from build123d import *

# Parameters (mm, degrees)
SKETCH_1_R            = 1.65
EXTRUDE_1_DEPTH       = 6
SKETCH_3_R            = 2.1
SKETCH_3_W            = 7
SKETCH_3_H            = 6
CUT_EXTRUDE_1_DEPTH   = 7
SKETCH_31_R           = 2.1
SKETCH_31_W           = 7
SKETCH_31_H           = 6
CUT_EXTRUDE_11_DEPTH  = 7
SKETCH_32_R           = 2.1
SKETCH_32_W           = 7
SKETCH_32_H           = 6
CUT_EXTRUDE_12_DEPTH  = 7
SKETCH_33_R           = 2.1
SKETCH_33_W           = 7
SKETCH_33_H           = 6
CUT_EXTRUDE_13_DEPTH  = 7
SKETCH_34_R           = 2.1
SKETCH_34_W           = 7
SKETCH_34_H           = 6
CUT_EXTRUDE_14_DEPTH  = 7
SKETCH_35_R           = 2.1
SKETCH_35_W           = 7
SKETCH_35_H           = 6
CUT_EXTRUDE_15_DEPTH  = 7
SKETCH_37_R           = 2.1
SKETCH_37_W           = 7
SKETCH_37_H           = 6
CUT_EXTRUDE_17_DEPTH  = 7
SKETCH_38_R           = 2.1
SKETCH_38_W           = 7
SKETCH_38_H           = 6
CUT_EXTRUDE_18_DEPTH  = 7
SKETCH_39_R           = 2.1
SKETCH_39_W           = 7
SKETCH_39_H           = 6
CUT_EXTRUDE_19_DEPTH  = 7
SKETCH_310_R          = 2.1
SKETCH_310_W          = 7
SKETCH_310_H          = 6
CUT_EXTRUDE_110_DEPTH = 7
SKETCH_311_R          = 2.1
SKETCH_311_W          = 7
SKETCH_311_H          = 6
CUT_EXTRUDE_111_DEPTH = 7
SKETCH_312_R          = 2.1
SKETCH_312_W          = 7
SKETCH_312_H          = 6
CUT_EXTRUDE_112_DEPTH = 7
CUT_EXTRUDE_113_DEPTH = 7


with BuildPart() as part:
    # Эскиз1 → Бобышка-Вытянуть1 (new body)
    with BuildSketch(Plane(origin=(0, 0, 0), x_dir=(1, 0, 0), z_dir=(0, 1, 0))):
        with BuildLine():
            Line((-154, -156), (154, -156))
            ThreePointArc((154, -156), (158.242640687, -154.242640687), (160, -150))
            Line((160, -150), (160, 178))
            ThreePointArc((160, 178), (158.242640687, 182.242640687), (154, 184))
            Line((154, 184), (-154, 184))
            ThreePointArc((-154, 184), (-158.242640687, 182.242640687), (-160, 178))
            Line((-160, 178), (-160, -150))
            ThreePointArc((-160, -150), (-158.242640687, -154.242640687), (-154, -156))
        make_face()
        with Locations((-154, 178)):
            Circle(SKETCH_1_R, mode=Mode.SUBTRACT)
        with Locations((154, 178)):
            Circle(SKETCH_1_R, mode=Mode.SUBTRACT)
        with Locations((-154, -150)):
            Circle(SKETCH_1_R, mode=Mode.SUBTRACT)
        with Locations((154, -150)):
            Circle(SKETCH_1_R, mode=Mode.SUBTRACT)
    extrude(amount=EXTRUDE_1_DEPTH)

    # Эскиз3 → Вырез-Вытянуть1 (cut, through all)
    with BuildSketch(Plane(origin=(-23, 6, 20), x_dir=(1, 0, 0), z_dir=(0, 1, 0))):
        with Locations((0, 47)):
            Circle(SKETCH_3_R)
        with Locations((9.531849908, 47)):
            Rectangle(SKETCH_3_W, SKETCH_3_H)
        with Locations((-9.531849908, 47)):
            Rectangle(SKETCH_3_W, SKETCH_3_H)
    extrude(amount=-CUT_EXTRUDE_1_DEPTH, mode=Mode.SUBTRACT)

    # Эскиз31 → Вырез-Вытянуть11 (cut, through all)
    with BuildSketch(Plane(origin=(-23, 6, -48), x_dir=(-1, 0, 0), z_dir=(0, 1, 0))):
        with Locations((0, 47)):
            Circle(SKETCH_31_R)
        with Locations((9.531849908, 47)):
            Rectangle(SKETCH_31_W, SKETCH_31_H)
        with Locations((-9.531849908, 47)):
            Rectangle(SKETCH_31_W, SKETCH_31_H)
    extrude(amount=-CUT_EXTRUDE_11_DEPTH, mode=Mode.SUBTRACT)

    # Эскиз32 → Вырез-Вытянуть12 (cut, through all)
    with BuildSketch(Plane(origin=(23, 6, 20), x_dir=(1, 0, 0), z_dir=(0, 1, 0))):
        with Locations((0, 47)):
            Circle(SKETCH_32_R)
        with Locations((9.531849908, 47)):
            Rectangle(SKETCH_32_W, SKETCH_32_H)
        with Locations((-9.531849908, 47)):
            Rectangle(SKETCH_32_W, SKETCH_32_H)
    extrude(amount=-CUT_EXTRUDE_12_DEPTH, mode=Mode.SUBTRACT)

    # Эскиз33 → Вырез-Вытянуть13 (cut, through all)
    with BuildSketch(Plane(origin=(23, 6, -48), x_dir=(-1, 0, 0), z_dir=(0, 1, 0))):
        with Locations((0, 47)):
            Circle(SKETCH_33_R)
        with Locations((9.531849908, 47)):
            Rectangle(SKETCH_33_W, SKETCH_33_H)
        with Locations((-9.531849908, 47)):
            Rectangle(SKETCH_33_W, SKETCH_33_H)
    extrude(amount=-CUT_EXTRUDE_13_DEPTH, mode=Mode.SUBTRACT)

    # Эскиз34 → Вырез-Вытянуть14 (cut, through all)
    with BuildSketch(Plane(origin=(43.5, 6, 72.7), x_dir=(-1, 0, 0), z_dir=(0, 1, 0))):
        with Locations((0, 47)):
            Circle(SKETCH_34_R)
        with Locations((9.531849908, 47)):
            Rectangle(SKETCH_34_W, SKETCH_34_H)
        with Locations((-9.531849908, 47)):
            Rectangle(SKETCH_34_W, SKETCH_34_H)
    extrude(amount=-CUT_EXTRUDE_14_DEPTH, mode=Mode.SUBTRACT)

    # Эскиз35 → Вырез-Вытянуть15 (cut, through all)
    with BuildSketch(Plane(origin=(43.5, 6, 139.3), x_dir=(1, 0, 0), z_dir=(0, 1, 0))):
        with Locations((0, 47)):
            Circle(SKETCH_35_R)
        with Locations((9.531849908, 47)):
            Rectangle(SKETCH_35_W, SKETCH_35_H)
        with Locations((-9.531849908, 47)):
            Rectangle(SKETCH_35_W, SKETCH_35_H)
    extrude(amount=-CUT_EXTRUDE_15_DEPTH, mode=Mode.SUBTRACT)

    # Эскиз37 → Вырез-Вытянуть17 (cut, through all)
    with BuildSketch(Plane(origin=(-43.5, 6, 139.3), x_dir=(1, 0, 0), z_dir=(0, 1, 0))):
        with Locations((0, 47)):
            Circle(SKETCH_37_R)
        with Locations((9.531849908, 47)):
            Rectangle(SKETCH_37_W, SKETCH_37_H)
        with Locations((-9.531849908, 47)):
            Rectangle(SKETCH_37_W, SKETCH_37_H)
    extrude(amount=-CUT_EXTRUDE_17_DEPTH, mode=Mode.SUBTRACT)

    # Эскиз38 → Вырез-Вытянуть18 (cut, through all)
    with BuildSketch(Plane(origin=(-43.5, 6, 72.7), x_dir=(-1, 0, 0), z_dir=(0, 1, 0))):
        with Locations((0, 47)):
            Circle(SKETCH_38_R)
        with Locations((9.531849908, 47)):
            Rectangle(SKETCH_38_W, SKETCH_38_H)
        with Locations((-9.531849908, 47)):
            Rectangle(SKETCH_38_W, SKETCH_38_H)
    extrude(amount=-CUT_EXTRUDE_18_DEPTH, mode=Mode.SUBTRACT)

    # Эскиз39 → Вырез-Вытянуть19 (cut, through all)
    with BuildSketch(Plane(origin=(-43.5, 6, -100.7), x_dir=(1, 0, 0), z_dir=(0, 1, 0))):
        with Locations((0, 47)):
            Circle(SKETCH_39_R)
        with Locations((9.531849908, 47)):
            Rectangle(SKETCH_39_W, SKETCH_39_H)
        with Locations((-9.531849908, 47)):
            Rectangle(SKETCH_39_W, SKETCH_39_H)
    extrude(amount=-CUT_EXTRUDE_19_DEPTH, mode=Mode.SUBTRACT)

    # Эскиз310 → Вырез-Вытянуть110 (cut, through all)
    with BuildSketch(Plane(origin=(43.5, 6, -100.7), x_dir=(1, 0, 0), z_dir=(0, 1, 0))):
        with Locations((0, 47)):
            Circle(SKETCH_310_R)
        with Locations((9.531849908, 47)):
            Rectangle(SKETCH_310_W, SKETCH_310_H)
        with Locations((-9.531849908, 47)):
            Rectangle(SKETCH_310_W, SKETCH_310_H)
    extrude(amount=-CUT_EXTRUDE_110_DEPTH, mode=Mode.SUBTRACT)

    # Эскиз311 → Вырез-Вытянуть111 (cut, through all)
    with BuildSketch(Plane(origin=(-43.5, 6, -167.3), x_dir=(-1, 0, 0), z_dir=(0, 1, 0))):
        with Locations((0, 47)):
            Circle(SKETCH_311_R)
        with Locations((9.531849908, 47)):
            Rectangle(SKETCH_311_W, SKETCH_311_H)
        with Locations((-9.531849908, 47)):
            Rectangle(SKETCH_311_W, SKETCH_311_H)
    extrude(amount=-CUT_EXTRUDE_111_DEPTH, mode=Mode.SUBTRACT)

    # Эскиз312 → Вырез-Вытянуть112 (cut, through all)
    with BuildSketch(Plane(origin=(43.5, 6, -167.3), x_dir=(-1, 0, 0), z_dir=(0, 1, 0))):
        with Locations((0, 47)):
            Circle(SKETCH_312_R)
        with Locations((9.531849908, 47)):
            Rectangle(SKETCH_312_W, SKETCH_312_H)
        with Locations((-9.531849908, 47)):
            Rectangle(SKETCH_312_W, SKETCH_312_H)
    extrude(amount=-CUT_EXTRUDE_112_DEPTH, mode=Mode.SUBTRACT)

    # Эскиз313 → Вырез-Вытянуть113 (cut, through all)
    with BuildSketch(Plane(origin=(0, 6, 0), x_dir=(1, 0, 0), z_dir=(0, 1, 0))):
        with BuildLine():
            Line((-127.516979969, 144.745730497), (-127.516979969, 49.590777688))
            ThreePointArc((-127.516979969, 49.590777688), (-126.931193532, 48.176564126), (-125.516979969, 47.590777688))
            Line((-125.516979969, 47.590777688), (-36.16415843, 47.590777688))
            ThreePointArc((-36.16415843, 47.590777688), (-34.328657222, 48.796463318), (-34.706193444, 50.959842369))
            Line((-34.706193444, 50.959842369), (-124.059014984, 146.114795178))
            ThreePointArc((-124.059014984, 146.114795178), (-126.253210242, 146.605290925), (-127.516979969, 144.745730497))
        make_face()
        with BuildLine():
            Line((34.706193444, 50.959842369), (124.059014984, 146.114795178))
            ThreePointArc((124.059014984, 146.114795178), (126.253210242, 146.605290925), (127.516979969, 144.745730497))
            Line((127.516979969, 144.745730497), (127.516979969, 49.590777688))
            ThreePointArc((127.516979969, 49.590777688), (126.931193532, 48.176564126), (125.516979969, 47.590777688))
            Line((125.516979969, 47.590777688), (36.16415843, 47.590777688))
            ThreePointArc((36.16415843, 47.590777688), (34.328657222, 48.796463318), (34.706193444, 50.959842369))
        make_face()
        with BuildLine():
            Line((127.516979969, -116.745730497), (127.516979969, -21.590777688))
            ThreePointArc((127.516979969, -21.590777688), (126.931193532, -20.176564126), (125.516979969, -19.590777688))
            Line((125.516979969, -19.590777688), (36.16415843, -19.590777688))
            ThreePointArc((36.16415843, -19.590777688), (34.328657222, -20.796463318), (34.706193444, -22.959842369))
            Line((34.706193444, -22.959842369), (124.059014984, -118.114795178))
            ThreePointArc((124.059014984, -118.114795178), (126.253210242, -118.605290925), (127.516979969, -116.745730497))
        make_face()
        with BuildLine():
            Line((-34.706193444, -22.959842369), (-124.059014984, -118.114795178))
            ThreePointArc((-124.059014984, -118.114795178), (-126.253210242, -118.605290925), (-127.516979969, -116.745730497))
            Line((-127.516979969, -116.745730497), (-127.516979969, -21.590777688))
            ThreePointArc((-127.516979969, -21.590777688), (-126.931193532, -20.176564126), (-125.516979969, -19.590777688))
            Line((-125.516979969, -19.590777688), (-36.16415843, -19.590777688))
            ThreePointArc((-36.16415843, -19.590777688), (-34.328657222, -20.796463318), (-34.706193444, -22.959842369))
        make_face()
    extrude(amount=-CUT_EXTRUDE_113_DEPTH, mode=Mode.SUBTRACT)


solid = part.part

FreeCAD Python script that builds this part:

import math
import FreeCAD as App
import Part
import Sketcher
from FreeCAD import Vector


def add_polygon(sketch, points):
    """Adds a closed chain of lines whose ends are joined by coincident constraints."""
    first, n = sketch.GeometryCount, len(points)
    for a, b in zip(points, points[1:] + points[:1]):
        sketch.addGeometry(Part.LineSegment(App.Vector(*a, 0), App.Vector(*b, 0)), False)
    for i in range(n):
        sketch.addConstraint(Sketcher.Constraint("Coincident", first + i, 2, first + (i + 1) % n, 1))

doc = App.newDocument("Part")
params = doc.addObject("Spreadsheet::Sheet", "Params")
for row, (alias, value) in enumerate([
    ("sketch1_radius", "6 mm"),
    ("sketch1_diameter", "3.3 mm"),
    ("sketch1_width", "308 mm"),
    ("sketch1_height", "328 mm"),
    ("pad1_length", "6 mm"),
    ("sketch2_diameter", "4.2 mm"),
    ("sketch2_width", "7 mm"),
    ("sketch2_height", "6 mm"),
    ("sketch3_diameter", "4.2 mm"),
    ("sketch3_width", "7 mm"),
    ("sketch3_height", "6 mm"),
    ("sketch4_diameter", "4.2 mm"),
    ("sketch4_width", "7 mm"),
    ("sketch4_height", "6 mm"),
    ("sketch5_diameter", "4.2 mm"),
    ("sketch5_width", "7 mm"),
    ("sketch5_height", "6 mm"),
    ("sketch6_diameter", "4.2 mm"),
    ("sketch6_width", "7 mm"),
    ("sketch6_height", "6 mm"),
    ("sketch7_diameter", "4.2 mm"),
    ("sketch7_width", "7 mm"),
    ("sketch7_height", "6 mm"),
    ("sketch8_diameter", "4.2 mm"),
    ("sketch8_width", "7 mm"),
    ("sketch8_height", "6 mm"),
    ("sketch9_diameter", "4.2 mm"),
    ("sketch9_width", "7 mm"),
    ("sketch9_height", "6 mm"),
    ("sketch10_diameter", "4.2 mm"),
    ("sketch10_width", "7 mm"),
    ("sketch10_height", "6 mm"),
    ("sketch11_diameter", "4.2 mm"),
    ("sketch11_width", "7 mm"),
    ("sketch11_height", "6 mm"),
    ("sketch12_diameter", "4.2 mm"),
    ("sketch12_width", "7 mm"),
    ("sketch12_height", "6 mm"),
    ("sketch13_diameter", "4.2 mm"),
    ("sketch13_width", "7 mm"),
    ("sketch13_height", "6 mm"),
    ("sketch14_radius", "2 mm"),
], start=1):
    params.set(f"A{row}", alias)
    params.set(f"B{row}", "=" + value)
    params.setAlias(f"B{row}", alias)

body = doc.addObject("PartDesign::Body", "Body")

sketch1 = doc.addObject("Sketcher::SketchObject", "Sketch")
body.addObject(sketch1)
sketch1.AttachmentSupport = (doc.XZ_Plane, [""])
sketch1.MapMode = "FlatFace"
sketch1.addGeometry([
    Part.LineSegment(Vector(-154, 156, 0), Vector(154, 156, 0)),
    Part.ArcOfCircle(Part.Circle(Vector(154, 150, 0), Vector(0, 0, 1), 6), math.radians(0), math.radians(90)),
    Part.LineSegment(Vector(160, 150, 0), Vector(160, -178, 0)),
    Part.ArcOfCircle(Part.Circle(Vector(154, -178, 0), Vector(0, 0, 1), 6), math.radians(-90), math.radians(0)),
    Part.LineSegment(Vector(154, -184, 0), Vector(-154, -184, 0)),
    Part.ArcOfCircle(Part.Circle(Vector(-154, -178, 0), Vector(0, 0, 1), 6), math.radians(180), math.radians(270)),
    Part.LineSegment(Vector(-160, -178, 0), Vector(-160, 150, 0)),
    Part.ArcOfCircle(Part.Circle(Vector(-154, 150, 0), Vector(0, 0, 1), 6), math.radians(90), math.radians(180)),
    Part.Circle(Vector(-154, 150, 0), Vector(0, 0, 1), 1.6),
    Part.Circle(Vector(154, 150, 0), Vector(0, 0, 1), 1.6),
    Part.Circle(Vector(-154, -178, 0), Vector(0, 0, 1), 1.6),
    Part.Circle(Vector(154, -178, 0), Vector(0, 0, 1), 1.6),
], False)
sketch1.addConstraint([
    Sketcher.Constraint("Tangent", 0, 2, 1, 2),
    Sketcher.Constraint("Tangent", 1, 1, 2, 1),
    Sketcher.Constraint("Tangent", 2, 2, 3, 2),
    Sketcher.Constraint("Tangent", 3, 1, 4, 1),
    Sketcher.Constraint("Tangent", 4, 2, 5, 2),
    Sketcher.Constraint("Tangent", 5, 1, 6, 1),
    Sketcher.Constraint("Tangent", 6, 2, 7, 2),
    Sketcher.Constraint("Tangent", 7, 1, 0, 1),
    Sketcher.Constraint("Horizontal", 0),
    Sketcher.Constraint("Vertical", 2),
    Sketcher.Constraint("Horizontal", 4),
    Sketcher.Constraint("Vertical", 6),
    Sketcher.Constraint("Coincident", 8, 3, 7, 3),
    Sketcher.Constraint("Coincident", 9, 3, 1, 3),
    Sketcher.Constraint("Coincident", 10, 3, 5, 3),
    Sketcher.Constraint("Coincident", 11, 3, 3, 3),
    Sketcher.Constraint("Equal", 1, 3),
    Sketcher.Constraint("Equal", 3, 5),
    Sketcher.Constraint("Equal", 5, 7),
    Sketcher.Constraint("Equal", 8, 9),
    Sketcher.Constraint("Equal", 9, 10),
    Sketcher.Constraint("Equal", 10, 11),
    Sketcher.Constraint("Radius", 1, 6.0),
    Sketcher.Constraint("Diameter", 8, 3.3),
    Sketcher.Constraint("DistanceX", 0, 1, 0, 2, 308.0),
    Sketcher.Constraint("DistanceY", 2, 2, 2, 1, 328.0),
    Sketcher.Constraint("DistanceX", -1, 1, 1, 3, 154.0),
    Sketcher.Constraint("DistanceY", -1, 1, 1, 3, 150.0),
])
sketch1.setExpression("Constraints[22]", "Params.sketch1_radius")
sketch1.setExpression("Constraints[23]", "Params.sketch1_diameter")
sketch1.setExpression("Constraints[24]", "Params.sketch1_width")
sketch1.setExpression("Constraints[25]", "Params.sketch1_height")
pad1 = doc.addObject("PartDesign::Pad", "Pad")
body.addObject(pad1)
pad1.Profile = sketch1
pad1.setExpression("Length", "Params.pad1_length")
pad1.Reversed = True

sketch2 = doc.addObject("Sketcher::SketchObject", "Sketch001")
body.addObject(sketch2)
sketch2.AttachmentSupport = (doc.XZ_Plane, [""])
sketch2.MapMode = "FlatFace"
sketch2.AttachmentOffset = App.Placement(Vector(0, 0, -6), App.Rotation())
sketch2.addGeometry(Part.Circle(Vector(-23, -27, 0), Vector(0, 0, 1), 2.1), False)
add_polygon(sketch2, [(-17, -30), (-17, -24), (-10, -24), (-10, -30)])
add_polygon(sketch2, [(-36, -30), (-36, -24), (-29, -24), (-29, -30)])
sketch2.addConstraint([
    Sketcher.Constraint("Vertical", 1),
    Sketcher.Constraint("Horizontal", 2),
    Sketcher.Constraint("Vertical", 3),
    Sketcher.Constraint("Horizontal", 4),
    Sketcher.Constraint("Vertical", 5),
    Sketcher.Constraint("Horizontal", 6),
    Sketcher.Constraint("Vertical", 7),
    Sketcher.Constraint("Horizontal", 8),
    Sketcher.Constraint("Horizontal", 2, 2, 5, 2),
    Sketcher.Constraint("Horizontal", 4, 2, 7, 2),
    Sketcher.Constraint("Equal", 4, 6),
    Sketcher.Constraint("Diameter", 0, 4.2),
    Sketcher.Constraint("DistanceX", 2, 1, 2, 2, 7.0),
    Sketcher.Constraint("DistanceY", 1, 1, 1, 2, 6.0),
    Sketcher.Constraint("DistanceX", 0, 3, -1, 1, 23.0),
    Sketcher.Constraint("DistanceY", 0, 3, -1, 1, 27.0),
    Sketcher.Constraint("DistanceY", 1, 2, -1, 1, 24.0),
    Sketcher.Constraint("DistanceX", 5, 2, 1, 2, 19.0637),
    Sketcher.Constraint("DistanceX", 1, 2, -1, 1, 16.96815),
])
sketch2.setExpression("Constraints[19]", "Params.sketch2_diameter")
sketch2.setExpression("Constraints[20]", "Params.sketch2_width")
sketch2.setExpression("Constraints[21]", "Params.sketch2_height")
pocket1 = doc.addObject("PartDesign::Pocket", "Pocket")
body.addObject(pocket1)
pocket1.Profile = sketch2
pocket1.Type = "ThroughAll"
pocket1.Reversed = True

sketch3 = doc.addObject("Sketcher::SketchObject", "Sketch002")
body.addObject(sketch3)
sketch3.AttachmentSupport = (doc.XZ_Plane, [""])
sketch3.MapMode = "FlatFace"
sketch3.AttachmentOffset = App.Placement(Vector(0, 0, -6), App.Rotation())
sketch3.addGeometry(Part.Circle(Vector(-23, -1, 0), Vector(0, 0, 1), 2.1), False)
add_polygon(sketch3, [(-29, 2), (-29, -4), (-36, -4), (-36, 2)])
add_polygon(sketch3, [(-10, 2), (-10, -4), (-17, -4), (-17, 2)])
sketch3.addConstraint([
    Sketcher.Constraint("Vertical", 1),
    Sketcher.Constraint("Horizontal", 2),
    Sketcher.Constraint("Vertical", 3),
    Sketcher.Constraint("Horizontal", 4),
    Sketcher.Constraint("Vertical", 5),
    Sketcher.Constraint("Horizontal", 6),
    Sketcher.Constraint("Vertical", 7),
    Sketcher.Constraint("Horizontal", 8),
    Sketcher.Constraint("Horizontal", 2, 2, 5, 2),
    Sketcher.Constraint("Horizontal", 4, 2, 7, 2),
    Sketcher.Constraint("Equal", 4, 6),
    Sketcher.Constraint("Diameter", 0, 4.2),
    Sketcher.Constraint("DistanceX", 2, 2, 2, 1, 7.0),
    Sketcher.Constraint("DistanceY", 1, 2, 1, 1, 6.0),
    Sketcher.Constraint("DistanceX", 0, 3, -1, 1, 23.0),
    Sketcher.Constraint("DistanceY", 0, 3, -1, 1, 1.0),
    Sketcher.Constraint("DistanceY", 1, 2, -1, 1, 4.0),
    Sketcher.Constraint("DistanceX", 1, 2, 5, 2, 19.0637),
    Sketcher.Constraint("DistanceX", 1, 2, -1, 1, 29.03185),
])
sketch3.setExpression("Constraints[19]", "Params.sketch3_diameter")
sketch3.setExpression("Constraints[20]", "Params.sketch3_width")
sketch3.setExpression("Constraints[21]", "Params.sketch3_height")
pocket2 = doc.addObject("PartDesign::Pocket", "Pocket001")
body.addObject(pocket2)
pocket2.Profile = sketch3
pocket2.Type = "ThroughAll"
pocket2.Reversed = True

sketch4 = doc.addObject("Sketcher::SketchObject", "Sketch003")
body.addObject(sketch4)
sketch4.AttachmentSupport = (doc.XZ_Plane, [""])
sketch4.MapMode = "FlatFace"
sketch4.AttachmentOffset = App.Placement(Vector(0, 0, -6), App.Rotation())
sketch4.addGeometry(Part.Circle(Vector(23, -27, 0), Vector(0, 0, 1), 2.1), False)
add_polygon(sketch4, [(29, -30), (29, -24), (36, -24), (36, -30)])
add_polygon(sketch4, [(10, -30), (10, -24), (17, -24), (17, -30)])
sketch4.addConstraint([
    Sketcher.Constraint("Vertical", 1),
    Sketcher.Constraint("Horizontal", 2),
    Sketcher.Constraint("Vertical", 3),
    Sketcher.Constraint("Horizontal", 4),
    Sketcher.Constraint("Vertical", 5),
    Sketcher.Constraint("Horizontal", 6),
    Sketcher.Constraint("Vertical", 7),
    Sketcher.Constraint("Horizontal", 8),
    Sketcher.Constraint("Horizontal", 2, 2, 5, 2),
    Sketcher.Constraint("Horizontal", 4, 2, 7, 2),
    Sketcher.Constraint("Equal", 4, 6),
    Sketcher.Constraint("Diameter", 0, 4.2),
    Sketcher.Constraint("DistanceX", 2, 1, 2, 2, 7.0),
    Sketcher.Constraint("DistanceY", 1, 1, 1, 2, 6.0),
    Sketcher.Constraint("DistanceX", -1, 1, 0, 3, 23.0),
    Sketcher.Constraint("DistanceY", 0, 3, -1, 1, 27.0),
    Sketcher.Constraint("DistanceY", 1, 2, -1, 1, 24.0),
    Sketcher.Constraint("DistanceX", 5, 2, 1, 2, 19.0637),
    Sketcher.Constraint("DistanceX", -1, 1, 1, 2, 29.03185),
])
sketch4.setExpression("Constraints[19]", "Params.sketch4_diameter")
sketch4.setExpression("Constraints[20]", "Params.sketch4_width")
sketch4.setExpression("Constraints[21]", "Params.sketch4_height")
pocket3 = doc.addObject("PartDesign::Pocket", "Pocket002")
body.addObject(pocket3)
pocket3.Profile = sketch4
pocket3.Type = "ThroughAll"
pocket3.Reversed = True

sketch5 = doc.addObject("Sketcher::SketchObject", "Sketch004")
body.addObject(sketch5)
sketch5.AttachmentSupport = (doc.XZ_Plane, [""])
sketch5.MapMode = "FlatFace"
sketch5.AttachmentOffset = App.Placement(Vector(0, 0, -6), App.Rotation())
sketch5.addGeometry(Part.Circle(Vector(23, -1, 0), Vector(0, 0, 1), 2.1), False)
add_polygon(sketch5, [(17, 2), (17, -4), (10, -4), (10, 2)])
add_polygon(sketch5, [(36, 2), (36, -4), (29, -4), (29, 2)])
sketch5.addConstraint([
    Sketcher.Constraint("Vertical", 1),
    Sketcher.Constraint("Horizontal", 2),
    Sketcher.Constraint("Vertical", 3),
    Sketcher.Constraint("Horizontal", 4),
    Sketcher.Constraint("Vertical", 5),
    Sketcher.Constraint("Horizontal", 6),
    Sketcher.Constraint("Vertical", 7),
    Sketcher.Constraint("Horizontal", 8),
    Sketcher.Constraint("Horizontal", 2, 2, 5, 2),
    Sketcher.Constraint("Horizontal", 4, 2, 7, 2),
    Sketcher.Constraint("Equal", 4, 6),
    Sketcher.Constraint("Diameter", 0, 4.2),
    Sketcher.Constraint("DistanceX", 2, 2, 2, 1, 7.0),
    Sketcher.Constraint("DistanceY", 1, 2, 1, 1, 6.0),
    Sketcher.Constraint("DistanceX", -1, 1, 0, 3, 23.0),
    Sketcher.Constraint("DistanceY", 0, 3, -1, 1, 1.0),
    Sketcher.Constraint("DistanceY", 1, 2, -1, 1, 4.0),
    Sketcher.Constraint("DistanceX", 1, 2, 5, 2, 19.0637),
    Sketcher.Constraint("DistanceX", -1, 1, 1, 2, 16.96815),
])
sketch5.setExpression("Constraints[19]", "Params.sketch5_diameter")
sketch5.setExpression("Constraints[20]", "Params.sketch5_width")
sketch5.setExpression("Constraints[21]", "Params.sketch5_height")
pocket4 = doc.addObject("PartDesign::Pocket", "Pocket003")
body.addObject(pocket4)
pocket4.Profile = sketch5
pocket4.Type = "ThroughAll"
pocket4.Reversed = True

sketch6 = doc.addObject("Sketcher::SketchObject", "Sketch005")
body.addObject(sketch6)
sketch6.AttachmentSupport = (doc.XZ_Plane, [""])
sketch6.MapMode = "FlatFace"
sketch6.AttachmentOffset = App.Placement(Vector(0, 0, -6), App.Rotation())
sketch6.addGeometry(Part.Circle(Vector(43.5, 119.7, 0), Vector(0, 0, 1), 2.1), False)
add_polygon(sketch6, [(37.5, 122.7), (37.5, 116.7), (30.5, 116.7), (30.5, 122.7)])
add_polygon(sketch6, [(56.5, 122.7), (56.5, 116.7), (49.5, 116.7), (49.5, 122.7)])
sketch6.addConstraint([
    Sketcher.Constraint("Vertical", 1),
    Sketcher.Constraint("Horizontal", 2),
    Sketcher.Constraint("Vertical", 3),
    Sketcher.Constraint("Horizontal", 4),
    Sketcher.Constraint("Vertical", 5),
    Sketcher.Constraint("Horizontal", 6),
    Sketcher.Constraint("Vertical", 7),
    Sketcher.Constraint("Horizontal", 8),
    Sketcher.Constraint("Horizontal", 2, 2, 5, 2),
    Sketcher.Constraint("Horizontal", 4, 2, 7, 2),
    Sketcher.Constraint("Equal", 4, 6),
    Sketcher.Constraint("Diameter", 0, 4.2),
    Sketcher.Constraint("DistanceX", 2, 2, 2, 1, 7.0),
    Sketcher.Constraint("DistanceY", 1, 2, 1, 1, 6.0),
    Sketcher.Constraint("DistanceY", 1, 2, 0, 3, 3.0),
    Sketcher.Constraint("DistanceX", -1, 1, 0, 3, 43.5),
    Sketcher.Constraint("DistanceY", -1, 1, 0, 3, 119.7),
    Sketcher.Constraint("DistanceX", 1, 2, 5, 2, 19.0637),
    Sketcher.Constraint("DistanceX", -1, 1, 1, 2, 37.46815),
])
sketch6.setExpression("Constraints[19]", "Params.sketch6_diameter")
sketch6.setExpression("Constraints[20]", "Params.sketch6_width")
sketch6.setExpression("Constraints[21]", "Params.sketch6_height")
pocket5 = doc.addObject("PartDesign::Pocket", "Pocket004")
body.addObject(pocket5)
pocket5.Profile = sketch6
pocket5.Type = "ThroughAll"
pocket5.Reversed = True

sketch7 = doc.addObject("Sketcher::SketchObject", "Sketch006")
body.addObject(sketch7)
sketch7.AttachmentSupport = (doc.XZ_Plane, [""])
sketch7.MapMode = "FlatFace"
sketch7.AttachmentOffset = App.Placement(Vector(0, 0, -6), App.Rotation())
sketch7.addGeometry(Part.Circle(Vector(43.5, 92.3, 0), Vector(0, 0, 1), 2.1), False)
add_polygon(sketch7, [(49.5, 89.3), (49.5, 95.3), (56.5, 95.3), (56.5, 89.3)])
add_polygon(sketch7, [(30.5, 89.3), (30.5, 95.3), (37.5, 95.3), (37.5, 89.3)])
sketch7.addConstraint([
    Sketcher.Constraint("Vertical", 1),
    Sketcher.Constraint("Horizontal", 2),
    Sketcher.Constraint("Vertical", 3),
    Sketcher.Constraint("Horizontal", 4),
    Sketcher.Constraint("Vertical", 5),
    Sketcher.Constraint("Horizontal", 6),
    Sketcher.Constraint("Vertical", 7),
    Sketcher.Constraint("Horizontal", 8),
    Sketcher.Constraint("Horizontal", 2, 2, 5, 2),
    Sketcher.Constraint("Horizontal", 4, 2, 7, 2),
    Sketcher.Constraint("Equal", 4, 6),
    Sketcher.Constraint("Diameter", 0, 4.2),
    Sketcher.Constraint("DistanceX", 2, 1, 2, 2, 7.0),
    Sketcher.Constraint("DistanceY", 1, 1, 1, 2, 6.0),
    Sketcher.Constraint("DistanceY", 0, 3, 1, 2, 3.0),
    Sketcher.Constraint("DistanceX", -1, 1, 0, 3, 43.5),
    Sketcher.Constraint("DistanceY", -1, 1, 0, 3, 92.3),
    Sketcher.Constraint("DistanceX", 5, 2, 1, 2, 19.0637),
    Sketcher.Constraint("DistanceX", -1, 1, 1, 2, 49.53185),
])
sketch7.setExpression("Constraints[19]", "Params.sketch7_diameter")
sketch7.setExpression("Constraints[20]", "Params.sketch7_width")
sketch7.setExpression("Constraints[21]", "Params.sketch7_height")
pocket6 = doc.addObject("PartDesign::Pocket", "Pocket005")
body.addObject(pocket6)
pocket6.Profile = sketch7
pocket6.Type = "ThroughAll"
pocket6.Reversed = True

sketch8 = doc.addObject("Sketcher::SketchObject", "Sketch007")
body.addObject(sketch8)
sketch8.AttachmentSupport = (doc.XZ_Plane, [""])
sketch8.MapMode = "FlatFace"
sketch8.AttachmentOffset = App.Placement(Vector(0, 0, -6), App.Rotation())
sketch8.addGeometry(Part.Circle(Vector(-43.5, 92.3, 0), Vector(0, 0, 1), 2.1), False)
add_polygon(sketch8, [(-37.5, 89.3), (-37.5, 95.3), (-30.5, 95.3), (-30.5, 89.3)])
add_polygon(sketch8, [(-56.5, 89.3), (-56.5, 95.3), (-49.5, 95.3), (-49.5, 89.3)])
sketch8.addConstraint([
    Sketcher.Constraint("Vertical", 1),
    Sketcher.Constraint("Horizontal", 2),
    Sketcher.Constraint("Vertical", 3),
    Sketcher.Constraint("Horizontal", 4),
    Sketcher.Constraint("Vertical", 5),
    Sketcher.Constraint("Horizontal", 6),
    Sketcher.Constraint("Vertical", 7),
    Sketcher.Constraint("Horizontal", 8),
    Sketcher.Constraint("Horizontal", 2, 2, 5, 2),
    Sketcher.Constraint("Horizontal", 4, 2, 7, 2),
    Sketcher.Constraint("Equal", 4, 6),
    Sketcher.Constraint("Diameter", 0, 4.2),
    Sketcher.Constraint("DistanceX", 2, 1, 2, 2, 7.0),
    Sketcher.Constraint("DistanceY", 1, 1, 1, 2, 6.0),
    Sketcher.Constraint("DistanceY", 0, 3, 1, 2, 3.0),
    Sketcher.Constraint("DistanceX", 0, 3, -1, 1, 43.5),
    Sketcher.Constraint("DistanceY", -1, 1, 0, 3, 92.3),
    Sketcher.Constraint("DistanceX", 5, 2, 1, 2, 19.0637),
    Sketcher.Constraint("DistanceX", 1, 2, -1, 1, 37.46815),
])
sketch8.setExpression("Constraints[19]", "Params.sketch8_diameter")
sketch8.setExpression("Constraints[20]", "Params.sketch8_width")
sketch8.setExpression("Constraints[21]", "Params.sketch8_height")
pocket7 = doc.addObject("PartDesign::Pocket", "Pocket006")
body.addObject(pocket7)
pocket7.Profile = sketch8
pocket7.Type = "ThroughAll"
pocket7.Reversed = True

sketch9 = doc.addObject("Sketcher::SketchObject", "Sketch008")
body.addObject(sketch9)
sketch9.AttachmentSupport = (doc.XZ_Plane, [""])
sketch9.MapMode = "FlatFace"
sketch9.AttachmentOffset = App.Placement(Vector(0, 0, -6), App.Rotation())
sketch9.addGeometry(Part.Circle(Vector(-43.5, 119.7, 0), Vector(0, 0, 1), 2.1), False)
add_polygon(sketch9, [(-49.5, 122.7), (-49.5, 116.7), (-56.5, 116.7), (-56.5, 122.7)])
add_polygon(sketch9, [(-30.5, 122.7), (-30.5, 116.7), (-37.5, 116.7), (-37.5, 122.7)])
sketch9.addConstraint([
    Sketcher.Constraint("Vertical", 1),
    Sketcher.Constraint("Horizontal", 2),
    Sketcher.Constraint("Vertical", 3),
    Sketcher.Constraint("Horizontal", 4),
    Sketcher.Constraint("Vertical", 5),
    Sketcher.Constraint("Horizontal", 6),
    Sketcher.Constraint("Vertical", 7),
    Sketcher.Constraint("Horizontal", 8),
    Sketcher.Constraint("Horizontal", 2, 2, 5, 2),
    Sketcher.Constraint("Horizontal", 4, 2, 7, 2),
    Sketcher.Constraint("Equal", 4, 6),
    Sketcher.Constraint("Diameter", 0, 4.2),
    Sketcher.Constraint("DistanceX", 2, 2, 2, 1, 7.0),
    Sketcher.Constraint("DistanceY", 1, 2, 1, 1, 6.0),
    Sketcher.Constraint("DistanceY", 1, 2, 0, 3, 3.0),
    Sketcher.Constraint("DistanceX", 0, 3, -1, 1, 43.5),
    Sketcher.Constraint("DistanceY", -1, 1, 0, 3, 119.7),
    Sketcher.Constraint("DistanceX", 1, 2, 5, 2, 19.0637),
    Sketcher.Constraint("DistanceX", 1, 2, -1, 1, 49.53185),
])
sketch9.setExpression("Constraints[19]", "Params.sketch9_diameter")
sketch9.setExpression("Constraints[20]", "Params.sketch9_width")
sketch9.setExpression("Constraints[21]", "Params.sketch9_height")
pocket8 = doc.addObject("PartDesign::Pocket", "Pocket007")
body.addObject(pocket8)
pocket8.Profile = sketch9
pocket8.Type = "ThroughAll"
pocket8.Reversed = True

sketch10 = doc.addObject("Sketcher::SketchObject", "Sketch009")
body.addObject(sketch10)
sketch10.AttachmentSupport = (doc.XZ_Plane, [""])
sketch10.MapMode = "FlatFace"
sketch10.AttachmentOffset = App.Placement(Vector(0, 0, -6), App.Rotation())
sketch10.addGeometry(Part.Circle(Vector(-43.5, -147.7, 0), Vector(0, 0, 1), 2.1), False)
add_polygon(sketch10, [(-37.5, -150.7), (-37.5, -144.7), (-30.5, -144.7), (-30.5, -150.7)])
add_polygon(sketch10, [(-56.5, -150.7), (-56.5, -144.7), (-49.5, -144.7), (-49.5, -150.7)])
sketch10.addConstraint([
    Sketcher.Constraint("Vertical", 1),
    Sketcher.Constraint("Horizontal", 2),
    Sketcher.Constraint("Vertical", 3),
    Sketcher.Constraint("Horizontal", 4),
    Sketcher.Constraint("Vertical", 5),
    Sketcher.Constraint("Horizontal", 6),
    Sketcher.Constraint("Vertical", 7),
    Sketcher.Constraint("Horizontal", 8),
    Sketcher.Constraint("Horizontal", 2, 2, 5, 2),
    Sketcher.Constraint("Horizontal", 4, 2, 7, 2),
    Sketcher.Constraint("Equal", 4, 6),
    Sketcher.Constraint("Diameter", 0, 4.2),
    Sketcher.Constraint("DistanceX", 2, 1, 2, 2, 7.0),
    Sketcher.Constraint("DistanceY", 1, 1, 1, 2, 6.0),
    Sketcher.Constraint("DistanceY", 0, 3, 1, 2, 3.0),
    Sketcher.Constraint("DistanceX", 0, 3, -1, 1, 43.5),
    Sketcher.Constraint("DistanceY", 0, 3, -1, 1, 147.7),
    Sketcher.Constraint("DistanceX", 5, 2, 1, 2, 19.0637),
    Sketcher.Constraint("DistanceX", 1, 2, -1, 1, 37.46815),
])
sketch10.setExpression("Constraints[19]", "Params.sketch10_diameter")
sketch10.setExpression("Constraints[20]", "Params.sketch10_width")
sketch10.setExpression("Constraints[21]", "Params.sketch10_height")
pocket9 = doc.addObject("PartDesign::Pocket", "Pocket008")
body.addObject(pocket9)
pocket9.Profile = sketch10
pocket9.Type = "ThroughAll"
pocket9.Reversed = True

sketch11 = doc.addObject("Sketcher::SketchObject", "Sketch010")
body.addObject(sketch11)
sketch11.AttachmentSupport = (doc.XZ_Plane, [""])
sketch11.MapMode = "FlatFace"
sketch11.AttachmentOffset = App.Placement(Vector(0, 0, -6), App.Rotation())
sketch11.addGeometry(Part.Circle(Vector(43.5, -147.7, 0), Vector(0, 0, 1), 2.1), False)
add_polygon(sketch11, [(49.5, -150.7), (49.5, -144.7), (56.5, -144.7), (56.5, -150.7)])
add_polygon(sketch11, [(30.5, -150.7), (30.5, -144.7), (37.5, -144.7), (37.5, -150.7)])
sketch11.addConstraint([
    Sketcher.Constraint("Vertical", 1),
    Sketcher.Constraint("Horizontal", 2),
    Sketcher.Constraint("Vertical", 3),
    Sketcher.Constraint("Horizontal", 4),
    Sketcher.Constraint("Vertical", 5),
    Sketcher.Constraint("Horizontal", 6),
    Sketcher.Constraint("Vertical", 7),
    Sketcher.Constraint("Horizontal", 8),
    Sketcher.Constraint("Horizontal", 2, 2, 5, 2),
    Sketcher.Constraint("Horizontal", 4, 2, 7, 2),
    Sketcher.Constraint("Equal", 4, 6),
    Sketcher.Constraint("Diameter", 0, 4.2),
    Sketcher.Constraint("DistanceX", 2, 1, 2, 2, 7.0),
    Sketcher.Constraint("DistanceY", 1, 1, 1, 2, 6.0),
    Sketcher.Constraint("DistanceY", 0, 3, 1, 2, 3.0),
    Sketcher.Constraint("DistanceX", -1, 1, 0, 3, 43.5),
    Sketcher.Constraint("DistanceY", 0, 3, -1, 1, 147.7),
    Sketcher.Constraint("DistanceX", 5, 2, 1, 2, 19.0637),
    Sketcher.Constraint("DistanceX", -1, 1, 1, 2, 49.53185),
])
sketch11.setExpression("Constraints[19]", "Params.sketch11_diameter")
sketch11.setExpression("Constraints[20]", "Params.sketch11_width")
sketch11.setExpression("Constraints[21]", "Params.sketch11_height")
pocket10 = doc.addObject("PartDesign::Pocket", "Pocket009")
body.addObject(pocket10)
pocket10.Profile = sketch11
pocket10.Type = "ThroughAll"
pocket10.Reversed = True

sketch12 = doc.addObject("Sketcher::SketchObject", "Sketch011")
body.addObject(sketch12)
sketch12.AttachmentSupport = (doc.XZ_Plane, [""])
sketch12.MapMode = "FlatFace"
sketch12.AttachmentOffset = App.Placement(Vector(0, 0, -6), App.Rotation())
sketch12.addGeometry(Part.Circle(Vector(-43.5, -120.3, 0), Vector(0, 0, 1), 2.1), False)
add_polygon(sketch12, [(-49.5, -117.3), (-49.5, -123.3), (-56.5, -123.3), (-56.5, -117.3)])
add_polygon(sketch12, [(-30.5, -117.3), (-30.5, -123.3), (-37.5, -123.3), (-37.5, -117.3)])
sketch12.addConstraint([
    Sketcher.Constraint("Vertical", 1),
    Sketcher.Constraint("Horizontal", 2),
    Sketcher.Constraint("Vertical", 3),
    Sketcher.Constraint("Horizontal", 4),
    Sketcher.Constraint("Vertical", 5),
    Sketcher.Constraint("Horizontal", 6),
    Sketcher.Constraint("Vertical", 7),
    Sketcher.Constraint("Horizontal", 8),
    Sketcher.Constraint("Horizontal", 2, 2, 5, 2),
    Sketcher.Constraint("Horizontal", 4, 2, 7, 2),
    Sketcher.Constraint("Equal", 4, 6),
    Sketcher.Constraint("Diameter", 0, 4.2),
    Sketcher.Constraint("DistanceX", 2, 2, 2, 1, 7.0),
    Sketcher.Constraint("DistanceY", 1, 2, 1, 1, 6.0),
    Sketcher.Constraint("DistanceY", 1, 2, 0, 3, 3.0),
    Sketcher.Constraint("DistanceX", 0, 3, -1, 1, 43.5),
    Sketcher.Constraint("DistanceY", 0, 3, -1, 1, 120.3),
    Sketcher.Constraint("DistanceX", 1, 2, 5, 2, 19.0637),
    Sketcher.Constraint("DistanceX", 1, 2, -1, 1, 49.53185),
])
sketch12.setExpression("Constraints[19]", "Params.sketch12_diameter")
sketch12.setExpression("Constraints[20]", "Params.sketch12_width")
sketch12.setExpression("Constraints[21]", "Params.sketch12_height")
pocket11 = doc.addObject("PartDesign::Pocket", "Pocket010")
body.addObject(pocket11)
pocket11.Profile = sketch12
pocket11.Type = "ThroughAll"
pocket11.Reversed = True

sketch13 = doc.addObject("Sketcher::SketchObject", "Sketch012")
body.addObject(sketch13)
sketch13.AttachmentSupport = (doc.XZ_Plane, [""])
sketch13.MapMode = "FlatFace"
sketch13.AttachmentOffset = App.Placement(Vector(0, 0, -6), App.Rotation())
sketch13.addGeometry(Part.Circle(Vector(43.5, -120.3, 0), Vector(0, 0, 1), 2.1), False)
add_polygon(sketch13, [(37.5, -117.3), (37.5, -123.3), (30.5, -123.3), (30.5, -117.3)])
add_polygon(sketch13, [(56.5, -117.3), (56.5, -123.3), (49.5, -123.3), (49.5, -117.3)])
sketch13.addConstraint([
    Sketcher.Constraint("Vertical", 1),
    Sketcher.Constraint("Horizontal", 2),
    Sketcher.Constraint("Vertical", 3),
    Sketcher.Constraint("Horizontal", 4),
    Sketcher.Constraint("Vertical", 5),
    Sketcher.Constraint("Horizontal", 6),
    Sketcher.Constraint("Vertical", 7),
    Sketcher.Constraint("Horizontal", 8),
    Sketcher.Constraint("Horizontal", 2, 2, 5, 2),
    Sketcher.Constraint("Horizontal", 4, 2, 7, 2),
    Sketcher.Constraint("Equal", 4, 6),
    Sketcher.Constraint("Diameter", 0, 4.2),
    Sketcher.Constraint("DistanceX", 2, 2, 2, 1, 7.0),
    Sketcher.Constraint("DistanceY", 1, 2, 1, 1, 6.0),
    Sketcher.Constraint("DistanceY", 1, 2, 0, 3, 3.0),
    Sketcher.Constraint("DistanceX", -1, 1, 0, 3, 43.5),
    Sketcher.Constraint("DistanceY", 0, 3, -1, 1, 120.3),
    Sketcher.Constraint("DistanceX", 1, 2, 5, 2, 19.0637),
    Sketcher.Constraint("DistanceX", -1, 1, 1, 2, 37.46815),
])
sketch13.setExpression("Constraints[19]", "Params.sketch13_diameter")
sketch13.setExpression("Constraints[20]", "Params.sketch13_width")
sketch13.setExpression("Constraints[21]", "Params.sketch13_height")
pocket12 = doc.addObject("PartDesign::Pocket", "Pocket011")
body.addObject(pocket12)
pocket12.Profile = sketch13
pocket12.Type = "ThroughAll"
pocket12.Reversed = True

sketch14 = doc.addObject("Sketcher::SketchObject", "Sketch013")
body.addObject(sketch14)
sketch14.AttachmentSupport = (doc.XZ_Plane, [""])
sketch14.MapMode = "FlatFace"
sketch14.AttachmentOffset = App.Placement(Vector(0, 0, -6), App.Rotation())
sketch14.addGeometry([
    Part.LineSegment(Vector(-127.5, -144.7, 0), Vector(-127.5, -49.6, 0)),
    Part.ArcOfCircle(Part.Circle(Vector(-125.5, -49.6, 0), Vector(0, 0, 1), 2), math.radians(90), math.radians(180)),
    Part.LineSegment(Vector(-125.5, -47.6, 0), Vector(-36.2, -47.6, 0)),
    Part.ArcOfCircle(Part.Circle(Vector(-36.2, -49.6, 0), Vector(0, 0, 1), 2), math.radians(-43), math.radians(90)),
    Part.LineSegment(Vector(-34.7, -51, 0), Vector(-124.1, -146.1, 0)),
    Part.ArcOfCircle(Part.Circle(Vector(-125.5, -144.7, 0), Vector(0, 0, 1), 2), math.radians(180), math.radians(317)),
    Part.LineSegment(Vector(124.1, -146.1, 0), Vector(34.7, -51, 0)),
    Part.ArcOfCircle(Part.Circle(Vector(36.2, -49.6, 0), Vector(0, 0, 1), 2), math.radians(90), math.radians(223)),
    Part.LineSegment(Vector(36.2, -47.6, 0), Vector(125.5, -47.6, 0)),
    Part.ArcOfCircle(Part.Circle(Vector(125.5, -49.6, 0), Vector(0, 0, 1), 2), math.radians(0), math.radians(90)),
    Part.LineSegment(Vector(127.5, -49.6, 0), Vector(127.5, -144.7, 0)),
    Part.ArcOfCircle(Part.Circle(Vector(125.5, -144.7, 0), Vector(0, 0, 1), 2), math.radians(-137), math.radians(0)),
    Part.LineSegment(Vector(127.5, 116.7, 0), Vector(127.5, 21.6, 0)),
    Part.ArcOfCircle(Part.Circle(Vector(125.5, 21.6, 0), Vector(0, 0, 1), 2), math.radians(-90), math.radians(0)),
    Part.LineSegment(Vector(125.5, 19.6, 0), Vector(36.2, 19.6, 0)),
    Part.ArcOfCircle(Part.Circle(Vector(36.2, 21.6, 0), Vector(0, 0, 1), 2), math.radians(137), math.radians(270)),
    Part.LineSegment(Vector(34.7, 23, 0), Vector(124.1, 118.1, 0)),
    Part.ArcOfCircle(Part.Circle(Vector(125.5, 116.7, 0), Vector(0, 0, 1), 2), math.radians(0), math.radians(137)),
    Part.LineSegment(Vector(-124.1, 118.1, 0), Vector(-34.7, 23, 0)),
    Part.ArcOfCircle(Part.Circle(Vector(-36.2, 21.6, 0), Vector(0, 0, 1), 2), math.radians(-90), math.radians(43)),
    Part.LineSegment(Vector(-36.2, 19.6, 0), Vector(-125.5, 19.6, 0)),
    Part.ArcOfCircle(Part.Circle(Vector(-125.5, 21.6, 0), Vector(0, 0, 1), 2), math.radians(180), math.radians(270)),
    Part.LineSegment(Vector(-127.5, 21.6, 0), Vector(-127.5, 116.7, 0)),
    Part.ArcOfCircle(Part.Circle(Vector(-125.5, 116.7, 0), Vector(0, 0, 1), 2), math.radians(43), math.radians(180)),
], False)
sketch14.addConstraint([
    Sketcher.Constraint("Tangent", 0, 2, 1, 2),
    Sketcher.Constraint("Tangent", 1, 1, 2, 1),
    Sketcher.Constraint("Tangent", 2, 2, 3, 2),
    Sketcher.Constraint("Tangent", 3, 1, 4, 1),
    Sketcher.Constraint("Tangent", 4, 2, 5, 2),
    Sketcher.Constraint("Tangent", 5, 1, 0, 1),
    Sketcher.Constraint("Tangent", 6, 2, 7, 2),
    Sketcher.Constraint("Tangent", 7, 1, 8, 1),
    Sketcher.Constraint("Tangent", 8, 2, 9, 2),
    Sketcher.Constraint("Tangent", 9, 1, 10, 1),
    Sketcher.Constraint("Tangent", 10, 2, 11, 2),
    Sketcher.Constraint("Tangent", 11, 1, 6, 1),
    Sketcher.Constraint("Tangent", 12, 2, 13, 2),
    Sketcher.Constraint("Tangent", 13, 1, 14, 1),
    Sketcher.Constraint("Tangent", 14, 2, 15, 2),
    Sketcher.Constraint("Tangent", 15, 1, 16, 1),
    Sketcher.Constraint("Tangent", 16, 2, 17, 2),
    Sketcher.Constraint("Tangent", 17, 1, 12, 1),
    Sketcher.Constraint("Tangent", 18, 2, 19, 2),
    Sketcher.Constraint("Tangent", 19, 1, 20, 1),
    Sketcher.Constraint("Tangent", 20, 2, 21, 2),
    Sketcher.Constraint("Tangent", 21, 1, 22, 1),
    Sketcher.Constraint("Tangent", 22, 2, 23, 2),
    Sketcher.Constraint("Tangent", 23, 1, 18, 1),
    Sketcher.Constraint("Vertical", 0),
    Sketcher.Constraint("Horizontal", 2),
    Sketcher.Constraint("Horizontal", 8),
    Sketcher.Constraint("Vertical", 10),
    Sketcher.Constraint("Vertical", 12),
    Sketcher.Constraint("Horizontal", 14),
    Sketcher.Constraint("Horizontal", 20),
    Sketcher.Constraint("Vertical", 22),
    Sketcher.Constraint("Equal", 1, 3),
    Sketcher.Constraint("Equal", 3, 5),
    Sketcher.Constraint("Equal", 5, 7),
    Sketcher.Constraint("Equal", 7, 9),
    Sketcher.Constraint("Equal", 9, 11),
    Sketcher.Constraint("Equal", 11, 13),
    Sketcher.Constraint("Equal", 13, 15),
    Sketcher.Constraint("Equal", 15, 17),
    Sketcher.Constraint("Equal", 17, 19),
    Sketcher.Constraint("Equal", 19, 21),
    Sketcher.Constraint("Equal", 21, 23),
    Sketcher.Constraint("Symmetric", 3, 3, 7, 3, -2),
    Sketcher.Constraint("Symmetric", 5, 3, 11, 3, -2),
    Sketcher.Constraint("Symmetric", 15, 3, 19, 3, -2),
    Sketcher.Constraint("Symmetric", 17, 3, 23, 3, -2),
    Sketcher.Constraint("Parallel", 4, 16),
    Sketcher.Constraint("Vertical", 11, 3, 13, 3),
    Sketcher.Constraint("Vertical", 7, 3, 15, 3),
    Sketcher.Constraint("Radius", 1, 2.0),
    Sketcher.Constraint("DistanceX", 2, 1, 2, 2, 89.352822),
    Sketcher.Constraint("Distance", 4, 130.531191),
    Sketcher.Constraint("DistanceX", 1, 3, -1, 1, 125.51698),
    Sketcher.Constraint("DistanceY", 5, 3, -1, 1, 144.74573),
    Sketcher.Constraint("DistanceY", -1, 1, 17, 3, 116.74573),
])
sketch14.setExpression("Constraints[50]", "Params.sketch14_radius")
pocket13 = doc.addObject("PartDesign::Pocket", "Pocket012")
body.addObject(pocket13)
pocket13.Profile = sketch14
pocket13.Type = "ThroughAll"
pocket13.Reversed = True

doc.recompute()
